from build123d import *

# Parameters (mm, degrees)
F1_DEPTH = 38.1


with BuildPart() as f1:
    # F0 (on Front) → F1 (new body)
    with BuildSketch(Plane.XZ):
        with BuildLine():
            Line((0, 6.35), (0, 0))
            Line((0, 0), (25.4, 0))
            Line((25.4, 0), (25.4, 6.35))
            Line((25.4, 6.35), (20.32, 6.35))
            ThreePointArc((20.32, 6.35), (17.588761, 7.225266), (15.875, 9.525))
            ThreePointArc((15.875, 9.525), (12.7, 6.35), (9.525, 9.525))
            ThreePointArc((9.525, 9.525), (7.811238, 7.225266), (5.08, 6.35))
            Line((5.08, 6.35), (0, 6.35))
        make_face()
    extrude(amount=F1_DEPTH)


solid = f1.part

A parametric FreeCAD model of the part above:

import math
import FreeCAD as App
import Part
import Sketcher
Q = App.Units.Quantity

doc = App.newDocument("Part")
body = doc.addObject("PartDesign::Body", "Body")

# Sketch on XZ plane
sketch1 = doc.addObject("Sketcher::SketchObject", "Sketch")
body.addObject(sketch1)
sketch1.AttachmentSupport = (doc.XZ_Plane, [""])
sketch1.MapMode = "FlatFace"
sketch1.addGeometry(Part.LineSegment(App.Vector(0, 6.35, 0), App.Vector(0, 0, 0)), False)
sketch1.addGeometry(Part.LineSegment(App.Vector(0, 0, 0), App.Vector(25.4, 0, 0)), False)
sketch1.addGeometry(Part.LineSegment(App.Vector(25.4, 0, 0), App.Vector(25.4, 6.35, 0)), False)
sketch1.addGeometry(Part.LineSegment(App.Vector(25.4, 6.35, 0), App.Vector(20.32, 6.35, 0)), False)
sketch1.addGeometry(Part.ArcOfCircle(Part.Circle(App.Vector(20.319998, 11.048997, 0), App.Vector(0, 0, 1), 4.698997), math.radians(-161.075385), math.radians(-89.999971)), False)
sketch1.addGeometry(Part.ArcOfCircle(Part.Circle(App.Vector(12.7, 9.525, 0), App.Vector(0, 0, 1), 3.175), math.radians(180), math.radians(360)), False)
sketch1.addGeometry(Part.ArcOfCircle(Part.Circle(App.Vector(5.080001, 11.048999, 0), App.Vector(0, 0, 1), 4.698999), math.radians(-90.000007), math.radians(-18.924637)), False)
sketch1.addGeometry(Part.LineSegment(App.Vector(5.08, 6.35, 0), App.Vector(0, 6.35, 0)), False)
sketch1.addConstraint(Sketcher.Constraint("Coincident", 0, 2, 1, 1))
sketch1.addConstraint(Sketcher.Constraint("Coincident", 1, 2, 2, 1))
sketch1.addConstraint(Sketcher.Constraint("Coincident", 2, 2, 3, 1))
sketch1.addConstraint(Sketcher.Constraint("Tangent", 3, 2, 4, 2))
sketch1.addConstraint(Sketcher.Constraint("Coincident", 4, 1, 5, 2))
sketch1.addConstraint(Sketcher.Constraint("Coincident", 5, 1, 6, 2))
sketch1.addConstraint(Sketcher.Constraint("Tangent", 6, 1, 7, 1))
sketch1.addConstraint(Sketcher.Constraint("Coincident", 7, 2, 0, 1))
sketch1.addConstraint(Sketcher.Constraint("Vertical", 0))
sketch1.addConstraint(Sketcher.Constraint("Horizontal", 1))
sketch1.addConstraint(Sketcher.Constraint("Vertical", 2))
sketch1.addConstraint(Sketcher.Constraint("Horizontal", 3))
sketch1.addConstraint(Sketcher.Constraint("Horizontal", 7))
sketch1.addConstraint(Sketcher.Constraint("Coincident", 0, 2, -1, 1))
sketch1.addConstraint(Sketcher.Constraint("Horizontal", 5, 3, 4, 1))
sketch1.addConstraint(Sketcher.Constraint("Horizontal", 4, 1, 5, 1))
sketch1.addConstraint(Sketcher.Constraint("Horizontal", 3, 2, 6, 1))
sketch1.addConstraint(Sketcher.Constraint("Equal", 3, 7))
sketch1.addConstraint(Sketcher.Constraint("DistanceX", 1, 1, 1, 2, Q("1 in")))
sketch1.addConstraint(Sketcher.Constraint("DistanceX", 3, 2, 3, 1, Q("0.2 in")))
sketch1.addConstraint(Sketcher.Constraint("Radius", 4, Q("0.1849999 in")))
sketch1.addConstraint(Sketcher.Constraint("Radius", 5, Q("0.125 in")))
sketch1.addConstraint(Sketcher.Constraint("Radius", 6, Q("0.185 in")))
sketch1.addConstraint(Sketcher.Constraint("DistanceY", 0, 2, 0, 1, Q("0.25 in")))
pad1 = doc.addObject("PartDesign::Pad", "Pad")
body.addObject(pad1)
pad1.Profile = sketch1
pad1.Length = Q("1.5 in")

doc.recompute()
